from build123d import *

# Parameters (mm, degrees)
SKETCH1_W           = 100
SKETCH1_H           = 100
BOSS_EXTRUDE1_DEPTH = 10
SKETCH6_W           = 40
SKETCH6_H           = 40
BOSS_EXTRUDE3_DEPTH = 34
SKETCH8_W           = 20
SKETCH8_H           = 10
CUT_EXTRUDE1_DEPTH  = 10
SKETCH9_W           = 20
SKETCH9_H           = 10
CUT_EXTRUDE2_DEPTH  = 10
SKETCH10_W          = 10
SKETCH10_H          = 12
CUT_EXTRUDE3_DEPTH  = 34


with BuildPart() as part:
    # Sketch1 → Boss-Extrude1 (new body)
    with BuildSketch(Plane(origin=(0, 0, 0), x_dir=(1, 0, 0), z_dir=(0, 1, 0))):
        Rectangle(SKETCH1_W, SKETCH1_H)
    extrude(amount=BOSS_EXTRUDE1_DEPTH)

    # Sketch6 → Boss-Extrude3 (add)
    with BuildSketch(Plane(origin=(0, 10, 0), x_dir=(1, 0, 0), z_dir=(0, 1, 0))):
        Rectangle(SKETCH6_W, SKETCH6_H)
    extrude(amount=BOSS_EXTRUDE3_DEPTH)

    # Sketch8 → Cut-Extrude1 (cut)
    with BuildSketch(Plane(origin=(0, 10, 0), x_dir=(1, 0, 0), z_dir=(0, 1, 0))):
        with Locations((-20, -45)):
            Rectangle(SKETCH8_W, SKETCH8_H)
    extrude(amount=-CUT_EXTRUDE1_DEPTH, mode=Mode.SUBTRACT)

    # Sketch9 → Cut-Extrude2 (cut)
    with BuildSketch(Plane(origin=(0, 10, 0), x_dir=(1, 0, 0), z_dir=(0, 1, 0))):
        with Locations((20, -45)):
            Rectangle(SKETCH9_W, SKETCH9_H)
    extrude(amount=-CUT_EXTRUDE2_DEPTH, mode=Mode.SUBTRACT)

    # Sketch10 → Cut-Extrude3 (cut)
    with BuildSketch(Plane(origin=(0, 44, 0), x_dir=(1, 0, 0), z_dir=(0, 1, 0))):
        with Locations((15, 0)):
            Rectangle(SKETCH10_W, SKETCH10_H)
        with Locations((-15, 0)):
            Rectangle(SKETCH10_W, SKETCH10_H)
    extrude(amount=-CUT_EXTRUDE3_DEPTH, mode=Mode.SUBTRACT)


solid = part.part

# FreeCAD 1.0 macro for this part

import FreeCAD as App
import Part
import Sketcher
from FreeCAD import Vector
Q = App.Units.Quantity


def add_polygon(sketch, points):
    """Adds a closed chain of lines whose ends are joined by coincident constraints."""
    first, n = sketch.GeometryCount, len(points)
    for a, b in zip(points, points[1:] + points[:1]):
        sketch.addGeometry(Part.LineSegment(App.Vector(*a, 0), App.Vector(*b, 0)), False)
    for i in range(n):
        sketch.addConstraint(Sketcher.Constraint("Coincident", first + i, 2, first + (i + 1) % n, 1))

doc = App.newDocument("Part")
body = doc.addObject("PartDesign::Body", "Body")

sketch1 = doc.addObject("Sketcher::SketchObject", "Sketch")
body.addObject(sketch1)
sketch1.AttachmentSupport = (doc.XZ_Plane, [""])
sketch1.MapMode = "FlatFace"
add_polygon(sketch1, [(-50, -50), (-50, 50), (50, 50), (50, -50)])
sketch1.addConstraint(Sketcher.Constraint("Vertical", 0))
sketch1.addConstraint(Sketcher.Constraint("Horizontal", 1))
sketch1.addConstraint(Sketcher.Constraint("Vertical", 2))
sketch1.addConstraint(Sketcher.Constraint("Horizontal", 3))
sketch1.addConstraint(Sketcher.Constraint("Symmetric", 0, 2, 2, 2, -1, 1))
sketch1.addConstraint(Sketcher.Constraint("Equal", 3, 0))
sketch1.addConstraint(Sketcher.Constraint("DistanceX", 1, 1, 1, 2, Q("100 mm")))
pad1 = doc.addObject("PartDesign::Pad", "Pad")
body.addObject(pad1)
pad1.Profile = sketch1
pad1.Length = 10
pad1.Reversed = True

sketch2 = doc.addObject("Sketcher::SketchObject", "Sketch001")
body.addObject(sketch2)
sketch2.AttachmentSupport = (doc.XZ_Plane, [""])
sketch2.MapMode = "FlatFace"
sketch2.AttachmentOffset = App.Placement(Vector(0, 0, -10), App.Rotation())
add_polygon(sketch2, [(-20, -20), (-20, 20), (20, 20), (20, -20)])
sketch2.addConstraint(Sketcher.Constraint("Vertical", 0))
sketch2.addConstraint(Sketcher.Constraint("Horizontal", 1))
sketch2.addConstraint(Sketcher.Constraint("Vertical", 2))
sketch2.addConstraint(Sketcher.Constraint("Horizontal", 3))
sketch2.addConstraint(Sketcher.Constraint("Symmetric", 0, 2, 2, 2, -1, 1))
sketch2.addConstraint(Sketcher.Constraint("Equal", 3, 0))
sketch2.addConstraint(Sketcher.Constraint("DistanceX", 1, 1, 1, 2, Q("40 mm")))
pad2 = doc.addObject("PartDesign::Pad", "Pad001")
body.addObject(pad2)
pad2.Profile = sketch2
pad2.Length = 34
pad2.Reversed = True

sketch3 = doc.addObject("Sketcher::SketchObject", "Sketch002")
body.addObject(sketch3)
sketch3.AttachmentSupport = (doc.XZ_Plane, [""])
sketch3.MapMode = "FlatFace"
sketch3.AttachmentOffset = App.Placement(Vector(0, 0, -10), App.Rotation())
add_polygon(sketch3, [(-30, 40), (-30, 50), (-10, 50), (-10, 40)])
sketch3.addConstraint(Sketcher.Constraint("Vertical", 0))
sketch3.addConstraint(Sketcher.Constraint("Horizontal", 1))
sketch3.addConstraint(Sketcher.Constraint("Vertical", 2))
sketch3.addConstraint(Sketcher.Constraint("Horizontal", 3))
sketch3.addConstraint(Sketcher.Constraint("DistanceX", 1, 1, 1, 2, Q("20 mm")))
sketch3.addConstraint(Sketcher.Constraint("DistanceY", 0, 1, 0, 2, Q("10 mm")))
sketch3.addConstraint(Sketcher.Constraint("DistanceX", 0, 2, -1, 1, Q("30 mm")))
sketch3.addConstraint(Sketcher.Constraint("DistanceY", -1, 1, 0, 2, Q("50 mm")))
pocket1 = doc.addObject("PartDesign::Pocket", "Pocket")
body.addObject(pocket1)
pocket1.Profile = sketch3
pocket1.Length = 10
pocket1.Reversed = True

sketch4 = doc.addObject("Sketcher::SketchObject", "Sketch003")
body.addObject(sketch4)
sketch4.AttachmentSupport = (doc.XZ_Plane, [""])
sketch4.MapMode = "FlatFace"
sketch4.AttachmentOffset = App.Placement(Vector(0, 0, -10), App.Rotation())
add_polygon(sketch4, [(10, 40), (10, 50), (30, 50), (30, 40)])
sketch4.addConstraint(Sketcher.Constraint("Vertical", 0))
sketch4.addConstraint(Sketcher.Constraint("Horizontal", 1))
sketch4.addConstraint(Sketcher.Constraint("Vertical", 2))
sketch4.addConstraint(Sketcher.Constraint("Horizontal", 3))
sketch4.addConstraint(Sketcher.Constraint("DistanceX", 1, 1, 1, 2, Q("20 mm")))
sketch4.addConstraint(Sketcher.Constraint("DistanceY", 0, 1, 0, 2, Q("10 mm")))
sketch4.addConstraint(Sketcher.Constraint("DistanceX", -1, 1, 0, 2, Q("10 mm")))
sketch4.addConstraint(Sketcher.Constraint("DistanceY", -1, 1, 0, 2, Q("50 mm")))
pocket2 = doc.addObject("PartDesign::Pocket", "Pocket001")
body.addObject(pocket2)
pocket2.Profile = sketch4
pocket2.Length = 10
pocket2.Reversed = True

sketch5 = doc.addObject("Sketcher::SketchObject", "Sketch004")
body.addObject(sketch5)
sketch5.AttachmentSupport = (doc.XZ_Plane, [""])
sketch5.MapMode = "FlatFace"
sketch5.AttachmentOffset = App.Placement(Vector(0, 0, -44), App.Rotation())
add_polygon(sketch5, [(10, -6), (10, 6), (20, 6), (20, -6)])
add_polygon(sketch5, [(-20, -6), (-20, 6), (-10, 6), (-10, -6)])
sketch5.addConstraint(Sketcher.Constraint("Vertical", 0))
sketch5.addConstraint(Sketcher.Constraint("Horizontal", 1))
sketch5.addConstraint(Sketcher.Constraint("Vertical", 2))
sketch5.addConstraint(Sketcher.Constraint("Horizontal", 3))
sketch5.addConstraint(Sketcher.Constraint("Vertical", 4))
sketch5.addConstraint(Sketcher.Constraint("Horizontal", 5))
sketch5.addConstraint(Sketcher.Constraint("Vertical", 6))
sketch5.addConstraint(Sketcher.Constraint("Horizontal", 7))
sketch5.addConstraint(Sketcher.Constraint("Symmetric", 2, 2, 4, 2, -1, 1))
sketch5.addConstraint(Sketcher.Constraint("Symmetric", 0, 2, 6, 2, -1, 1))
sketch5.addConstraint(Sketcher.Constraint("Horizontal", 1, 2, 4, 2))
sketch5.addConstraint(Sketcher.Constraint("DistanceX", 1, 1, 1, 2, Q("10 mm")))
sketch5.addConstraint(Sketcher.Constraint("DistanceY", 0, 1, 0, 2, Q("12 mm")))
sketch5.addConstraint(Sketcher.Constraint("DistanceX", -1, 1, 0, 2, Q("10 mm")))
pocket3 = doc.addObject("PartDesign::Pocket", "Pocket002")
body.addObject(pocket3)
pocket3.Profile = sketch5
pocket3.Length = 34
pocket3.Reversed = True

doc.recompute()
